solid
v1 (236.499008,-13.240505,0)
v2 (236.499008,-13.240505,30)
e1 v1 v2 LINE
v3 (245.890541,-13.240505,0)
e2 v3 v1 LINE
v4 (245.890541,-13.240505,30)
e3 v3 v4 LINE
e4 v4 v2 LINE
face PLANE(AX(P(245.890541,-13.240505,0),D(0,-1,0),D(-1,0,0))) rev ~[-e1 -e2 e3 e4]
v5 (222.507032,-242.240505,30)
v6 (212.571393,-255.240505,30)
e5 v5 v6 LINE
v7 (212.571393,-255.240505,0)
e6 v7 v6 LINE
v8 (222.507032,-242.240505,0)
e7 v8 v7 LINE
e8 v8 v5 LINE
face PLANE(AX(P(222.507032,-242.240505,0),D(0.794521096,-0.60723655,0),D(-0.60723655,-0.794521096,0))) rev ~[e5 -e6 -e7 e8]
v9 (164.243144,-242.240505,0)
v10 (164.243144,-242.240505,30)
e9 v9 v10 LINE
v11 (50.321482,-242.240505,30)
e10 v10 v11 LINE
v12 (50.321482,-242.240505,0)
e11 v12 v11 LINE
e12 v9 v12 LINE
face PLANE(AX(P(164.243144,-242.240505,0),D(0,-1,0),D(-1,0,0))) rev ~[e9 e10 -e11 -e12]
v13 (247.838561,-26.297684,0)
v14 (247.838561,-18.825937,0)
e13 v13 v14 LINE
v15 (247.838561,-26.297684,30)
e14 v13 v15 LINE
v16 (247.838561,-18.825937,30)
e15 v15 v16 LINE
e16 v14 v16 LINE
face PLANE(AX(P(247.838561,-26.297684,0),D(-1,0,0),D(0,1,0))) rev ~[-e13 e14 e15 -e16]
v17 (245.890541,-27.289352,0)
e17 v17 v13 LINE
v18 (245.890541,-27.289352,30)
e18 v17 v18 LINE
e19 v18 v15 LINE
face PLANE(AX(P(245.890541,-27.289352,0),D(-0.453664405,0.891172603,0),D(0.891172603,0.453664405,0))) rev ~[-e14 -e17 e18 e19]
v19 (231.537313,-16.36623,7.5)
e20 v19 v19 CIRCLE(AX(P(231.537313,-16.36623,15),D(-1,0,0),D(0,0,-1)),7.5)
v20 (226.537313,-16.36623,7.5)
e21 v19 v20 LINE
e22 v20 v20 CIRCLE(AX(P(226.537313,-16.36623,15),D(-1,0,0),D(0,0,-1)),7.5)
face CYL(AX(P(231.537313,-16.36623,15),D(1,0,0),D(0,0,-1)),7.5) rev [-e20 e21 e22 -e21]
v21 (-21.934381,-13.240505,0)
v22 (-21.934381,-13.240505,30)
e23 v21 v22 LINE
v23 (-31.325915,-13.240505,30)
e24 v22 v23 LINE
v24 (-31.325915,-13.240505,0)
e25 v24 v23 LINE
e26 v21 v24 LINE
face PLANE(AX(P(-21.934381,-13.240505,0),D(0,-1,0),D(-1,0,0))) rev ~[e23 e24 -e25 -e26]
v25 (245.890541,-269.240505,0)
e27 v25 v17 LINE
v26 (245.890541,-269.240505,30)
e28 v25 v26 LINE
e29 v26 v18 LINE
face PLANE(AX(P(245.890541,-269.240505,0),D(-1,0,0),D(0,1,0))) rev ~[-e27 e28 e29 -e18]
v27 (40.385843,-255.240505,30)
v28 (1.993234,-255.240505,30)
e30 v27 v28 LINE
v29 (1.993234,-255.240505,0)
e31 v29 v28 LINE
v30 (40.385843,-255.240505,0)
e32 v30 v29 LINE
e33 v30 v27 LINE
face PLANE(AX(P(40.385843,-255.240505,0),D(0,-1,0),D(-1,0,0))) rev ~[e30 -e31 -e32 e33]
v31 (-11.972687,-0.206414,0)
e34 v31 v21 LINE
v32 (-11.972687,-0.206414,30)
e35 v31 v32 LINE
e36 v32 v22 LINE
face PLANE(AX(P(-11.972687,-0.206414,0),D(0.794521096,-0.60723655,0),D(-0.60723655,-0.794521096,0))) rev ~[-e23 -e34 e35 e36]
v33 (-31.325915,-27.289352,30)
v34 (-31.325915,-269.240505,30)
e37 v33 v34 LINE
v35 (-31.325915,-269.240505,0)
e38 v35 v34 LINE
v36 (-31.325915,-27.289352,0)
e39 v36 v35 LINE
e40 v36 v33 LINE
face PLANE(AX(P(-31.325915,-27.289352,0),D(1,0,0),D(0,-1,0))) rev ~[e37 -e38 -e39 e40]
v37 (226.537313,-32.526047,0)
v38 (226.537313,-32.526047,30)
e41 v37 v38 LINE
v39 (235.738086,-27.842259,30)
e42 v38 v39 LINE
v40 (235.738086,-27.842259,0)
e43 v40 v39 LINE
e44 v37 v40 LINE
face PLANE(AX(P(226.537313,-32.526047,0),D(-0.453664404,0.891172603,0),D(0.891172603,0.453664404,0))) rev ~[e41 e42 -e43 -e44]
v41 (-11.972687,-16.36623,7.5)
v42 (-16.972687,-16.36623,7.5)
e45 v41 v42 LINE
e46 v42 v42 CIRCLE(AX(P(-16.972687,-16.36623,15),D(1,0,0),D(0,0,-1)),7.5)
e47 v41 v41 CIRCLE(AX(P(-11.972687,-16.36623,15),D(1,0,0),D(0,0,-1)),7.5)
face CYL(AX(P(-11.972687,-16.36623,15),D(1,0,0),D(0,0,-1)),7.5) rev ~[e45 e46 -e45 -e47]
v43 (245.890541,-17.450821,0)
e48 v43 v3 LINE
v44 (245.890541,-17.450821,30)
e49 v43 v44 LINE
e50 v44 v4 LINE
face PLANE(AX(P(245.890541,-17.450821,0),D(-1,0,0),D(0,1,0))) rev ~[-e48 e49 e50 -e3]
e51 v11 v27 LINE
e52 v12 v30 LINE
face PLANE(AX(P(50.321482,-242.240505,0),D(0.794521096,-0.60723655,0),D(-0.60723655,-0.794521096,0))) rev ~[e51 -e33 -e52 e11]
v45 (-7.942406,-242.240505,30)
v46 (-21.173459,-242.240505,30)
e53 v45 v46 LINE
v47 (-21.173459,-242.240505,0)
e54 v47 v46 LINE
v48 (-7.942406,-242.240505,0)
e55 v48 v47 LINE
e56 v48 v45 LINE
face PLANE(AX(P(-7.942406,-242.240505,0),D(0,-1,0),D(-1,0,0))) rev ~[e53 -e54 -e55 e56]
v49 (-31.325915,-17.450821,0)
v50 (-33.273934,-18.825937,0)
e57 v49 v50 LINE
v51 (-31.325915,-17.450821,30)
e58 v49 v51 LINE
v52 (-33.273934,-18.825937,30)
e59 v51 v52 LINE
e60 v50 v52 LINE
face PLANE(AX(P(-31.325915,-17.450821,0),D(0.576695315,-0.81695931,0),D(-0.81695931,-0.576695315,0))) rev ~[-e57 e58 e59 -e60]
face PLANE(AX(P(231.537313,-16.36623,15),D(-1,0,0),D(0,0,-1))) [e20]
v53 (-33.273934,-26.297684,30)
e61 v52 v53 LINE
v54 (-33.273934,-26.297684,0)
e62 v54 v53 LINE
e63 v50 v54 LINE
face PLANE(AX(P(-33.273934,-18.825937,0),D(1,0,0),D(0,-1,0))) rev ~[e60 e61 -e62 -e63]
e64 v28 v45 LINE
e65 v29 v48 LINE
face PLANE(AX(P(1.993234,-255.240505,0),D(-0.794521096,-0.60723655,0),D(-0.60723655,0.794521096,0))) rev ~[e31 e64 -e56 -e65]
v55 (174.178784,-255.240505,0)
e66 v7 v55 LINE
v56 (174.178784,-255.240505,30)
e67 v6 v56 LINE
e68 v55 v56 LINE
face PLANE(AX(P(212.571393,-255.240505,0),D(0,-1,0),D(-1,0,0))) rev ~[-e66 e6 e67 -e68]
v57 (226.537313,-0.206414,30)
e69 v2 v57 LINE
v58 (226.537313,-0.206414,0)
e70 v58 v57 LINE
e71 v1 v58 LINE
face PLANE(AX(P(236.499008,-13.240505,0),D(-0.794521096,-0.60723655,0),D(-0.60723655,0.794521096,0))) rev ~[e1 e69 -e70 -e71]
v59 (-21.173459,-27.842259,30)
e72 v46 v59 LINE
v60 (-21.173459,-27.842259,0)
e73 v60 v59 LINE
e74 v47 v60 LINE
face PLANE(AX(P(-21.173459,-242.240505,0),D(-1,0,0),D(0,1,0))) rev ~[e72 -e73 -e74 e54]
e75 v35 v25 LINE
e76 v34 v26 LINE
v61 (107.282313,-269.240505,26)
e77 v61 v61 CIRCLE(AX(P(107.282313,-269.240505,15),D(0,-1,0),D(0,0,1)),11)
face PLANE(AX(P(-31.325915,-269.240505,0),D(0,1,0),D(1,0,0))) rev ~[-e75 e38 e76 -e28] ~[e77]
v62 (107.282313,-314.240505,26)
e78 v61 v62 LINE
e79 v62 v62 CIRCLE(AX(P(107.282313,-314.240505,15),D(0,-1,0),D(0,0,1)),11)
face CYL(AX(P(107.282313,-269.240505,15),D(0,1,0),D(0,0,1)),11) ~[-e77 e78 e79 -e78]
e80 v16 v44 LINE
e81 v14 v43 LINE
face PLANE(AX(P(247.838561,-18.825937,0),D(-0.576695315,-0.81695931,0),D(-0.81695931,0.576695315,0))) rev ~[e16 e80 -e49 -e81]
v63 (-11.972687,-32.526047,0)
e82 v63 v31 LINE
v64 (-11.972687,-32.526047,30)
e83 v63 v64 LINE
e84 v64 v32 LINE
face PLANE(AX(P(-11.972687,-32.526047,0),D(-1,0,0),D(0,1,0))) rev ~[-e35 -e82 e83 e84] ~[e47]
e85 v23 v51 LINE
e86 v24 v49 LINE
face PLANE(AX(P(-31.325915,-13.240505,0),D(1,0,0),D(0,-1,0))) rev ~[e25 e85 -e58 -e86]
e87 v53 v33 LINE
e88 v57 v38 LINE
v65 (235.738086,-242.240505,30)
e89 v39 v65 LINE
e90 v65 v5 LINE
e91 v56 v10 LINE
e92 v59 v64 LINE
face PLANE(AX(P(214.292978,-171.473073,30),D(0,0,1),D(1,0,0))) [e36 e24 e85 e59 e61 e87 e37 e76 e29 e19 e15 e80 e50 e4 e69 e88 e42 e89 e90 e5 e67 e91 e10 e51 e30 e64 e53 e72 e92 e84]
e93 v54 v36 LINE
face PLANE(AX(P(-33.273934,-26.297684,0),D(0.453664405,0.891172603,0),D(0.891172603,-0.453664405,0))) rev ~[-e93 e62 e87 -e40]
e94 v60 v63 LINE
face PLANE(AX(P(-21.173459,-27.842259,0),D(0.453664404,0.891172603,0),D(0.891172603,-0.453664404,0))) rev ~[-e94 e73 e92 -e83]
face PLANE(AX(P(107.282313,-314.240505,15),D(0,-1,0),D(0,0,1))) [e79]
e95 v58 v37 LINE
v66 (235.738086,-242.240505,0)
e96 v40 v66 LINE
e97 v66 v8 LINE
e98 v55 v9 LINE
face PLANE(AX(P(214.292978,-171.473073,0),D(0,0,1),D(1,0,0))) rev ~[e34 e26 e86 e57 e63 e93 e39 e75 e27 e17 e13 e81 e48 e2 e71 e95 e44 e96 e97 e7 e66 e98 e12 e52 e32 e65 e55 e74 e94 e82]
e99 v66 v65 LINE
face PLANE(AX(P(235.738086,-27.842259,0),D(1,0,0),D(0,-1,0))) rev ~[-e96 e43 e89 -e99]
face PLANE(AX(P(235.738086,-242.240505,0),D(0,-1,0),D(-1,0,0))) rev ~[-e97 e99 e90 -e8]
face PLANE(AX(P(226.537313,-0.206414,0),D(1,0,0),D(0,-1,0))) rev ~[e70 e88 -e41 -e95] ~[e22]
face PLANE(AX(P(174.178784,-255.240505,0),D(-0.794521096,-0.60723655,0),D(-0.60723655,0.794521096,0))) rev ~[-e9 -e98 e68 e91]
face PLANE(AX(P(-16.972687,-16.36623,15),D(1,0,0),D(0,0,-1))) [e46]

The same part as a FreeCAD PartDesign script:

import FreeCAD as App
import Part
import Sketcher
Q = App.Units.Quantity

doc = App.newDocument("Part")
body = doc.addObject("PartDesign::Body", "Body")

sketch1 = body.newObject("Sketcher::SketchObject", "Sketch")
sketch1.AttachmentSupport = (doc.getObject("XY_Plane"), [""])
sketch1.MapMode = "FlatFace"
sketch1.addGeometry([
    Part.LineSegment(App.Vector(164.2, -242.2, 0), App.Vector(50.3, -242.2, 0)),
    Part.LineSegment(App.Vector(50.3, -242.2, 0), App.Vector(40.4, -255.2, 0)),
    Part.LineSegment(App.Vector(40.4, -255.2, 0), App.Vector(2, -255.2, 0)),
    Part.LineSegment(App.Vector(2, -255.2, 0), App.Vector(-7.9, -242.2, 0)),
    Part.LineSegment(App.Vector(-7.9, -242.2, 0), App.Vector(-21.2, -242.2, 0)),
    Part.LineSegment(App.Vector(-21.2, -242.2, 0), App.Vector(-21.2, -27.8, 0)),
    Part.LineSegment(App.Vector(-21.2, -27.8, 0), App.Vector(-12, -32.5, 0)),
    Part.LineSegment(App.Vector(-12, -32.5, 0), App.Vector(-12, -0.2, 0)),
    Part.LineSegment(App.Vector(-12, -0.2, 0), App.Vector(-21.9, -13.2, 0)),
    Part.LineSegment(App.Vector(-21.9, -13.2, 0), App.Vector(-31.3, -13.2, 0)),
    Part.LineSegment(App.Vector(-31.3, -13.2, 0), App.Vector(-31.3, -17.5, 0)),
    Part.LineSegment(App.Vector(-31.3, -17.5, 0), App.Vector(-33.3, -18.8, 0)),
    Part.LineSegment(App.Vector(-33.3, -18.8, 0), App.Vector(-33.3, -26.3, 0)),
    Part.LineSegment(App.Vector(-33.3, -26.3, 0), App.Vector(-31.3, -27.3, 0)),
    Part.LineSegment(App.Vector(-31.3, -27.3, 0), App.Vector(-31.3, -269.2, 0)),
    Part.LineSegment(App.Vector(-31.3, -269.2, 0), App.Vector(245.9, -269.2, 0)),
    Part.LineSegment(App.Vector(245.9, -269.2, 0), App.Vector(245.9, -27.3, 0)),
    Part.LineSegment(App.Vector(245.9, -27.3, 0), App.Vector(247.8, -26.3, 0)),
    Part.LineSegment(App.Vector(247.8, -26.3, 0), App.Vector(247.8, -18.8, 0)),
    Part.LineSegment(App.Vector(247.8, -18.8, 0), App.Vector(245.9, -17.5, 0)),
    Part.LineSegment(App.Vector(245.9, -17.5, 0), App.Vector(245.9, -13.2, 0)),
    Part.LineSegment(App.Vector(245.9, -13.2, 0), App.Vector(236.5, -13.2, 0)),
    Part.LineSegment(App.Vector(236.5, -13.2, 0), App.Vector(226.5, -0.2, 0)),
    Part.LineSegment(App.Vector(226.5, -0.2, 0), App.Vector(226.5, -32.5, 0)),
    Part.LineSegment(App.Vector(226.5, -32.5, 0), App.Vector(235.7, -27.8, 0)),
    Part.LineSegment(App.Vector(235.7, -27.8, 0), App.Vector(235.7, -242.2, 0)),
    Part.LineSegment(App.Vector(235.7, -242.2, 0), App.Vector(222.5, -242.2, 0)),
    Part.LineSegment(App.Vector(222.5, -242.2, 0), App.Vector(212.6, -255.2, 0)),
    Part.LineSegment(App.Vector(212.6, -255.2, 0), App.Vector(174.2, -255.2, 0)),
    Part.LineSegment(App.Vector(174.2, -255.2, 0), App.Vector(164.2, -242.2, 0)),
], False)
sketch1.addConstraint([
    Sketcher.Constraint("Coincident", 0, 2, 1, 1),
    Sketcher.Constraint("Coincident", 1, 2, 2, 1),
    Sketcher.Constraint("Coincident", 2, 2, 3, 1),
    Sketcher.Constraint("Coincident", 3, 2, 4, 1),
    Sketcher.Constraint("Coincident", 4, 2, 5, 1),
    Sketcher.Constraint("Coincident", 5, 2, 6, 1),
    Sketcher.Constraint("Coincident", 6, 2, 7, 1),
    Sketcher.Constraint("Coincident", 7, 2, 8, 1),
    Sketcher.Constraint("Coincident", 8, 2, 9, 1),
    Sketcher.Constraint("Coincident", 9, 2, 10, 1),
    Sketcher.Constraint("Coincident", 10, 2, 11, 1),
    Sketcher.Constraint("Coincident", 11, 2, 12, 1),
    Sketcher.Constraint("Coincident", 12, 2, 13, 1),
    Sketcher.Constraint("Coincident", 13, 2, 14, 1),
    Sketcher.Constraint("Coincident", 14, 2, 15, 1),
    Sketcher.Constraint("Coincident", 15, 2, 16, 1),
    Sketcher.Constraint("Coincident", 16, 2, 17, 1),
    Sketcher.Constraint("Coincident", 17, 2, 18, 1),
    Sketcher.Constraint("Coincident", 18, 2, 19, 1),
    Sketcher.Constraint("Coincident", 19, 2, 20, 1),
    Sketcher.Constraint("Coincident", 20, 2, 21, 1),
    Sketcher.Constraint("Coincident", 21, 2, 22, 1),
    Sketcher.Constraint("Coincident", 22, 2, 23, 1),
    Sketcher.Constraint("Coincident", 23, 2, 24, 1),
    Sketcher.Constraint("Coincident", 24, 2, 25, 1),
    Sketcher.Constraint("Coincident", 25, 2, 26, 1),
    Sketcher.Constraint("Coincident", 26, 2, 27, 1),
    Sketcher.Constraint("Coincident", 27, 2, 28, 1),
    Sketcher.Constraint("Coincident", 28, 2, 29, 1),
    Sketcher.Constraint("Coincident", 29, 2, 0, 1),
    Sketcher.Constraint("Horizontal", 0),
    Sketcher.Constraint("Horizontal", 2),
    Sketcher.Constraint("Horizontal", 4),
    Sketcher.Constraint("Vertical", 5),
    Sketcher.Constraint("Vertical", 7),
    Sketcher.Constraint("Horizontal", 9),
    Sketcher.Constraint("Vertical", 10),
    Sketcher.Constraint("Vertical", 12),
    Sketcher.Constraint("Vertical", 14),
    Sketcher.Constraint("Horizontal", 15),
    Sketcher.Constraint("Vertical", 16),
    Sketcher.Constraint("Vertical", 18),
    Sketcher.Constraint("Vertical", 20),
    Sketcher.Constraint("Horizontal", 21),
    Sketcher.Constraint("Vertical", 23),
    Sketcher.Constraint("Vertical", 25),
    Sketcher.Constraint("Horizontal", 26),
    Sketcher.Constraint("Horizontal", 28),
    Sketcher.Constraint("Parallel", 1, 8),
    Sketcher.Constraint("Parallel", 6, 13),
    Sketcher.Constraint("Parallel", 3, 22),
    Sketcher.Constraint("Parallel", 17, 24),
    Sketcher.Constraint("Parallel", 8, 27),
    Sketcher.Constraint("Parallel", 22, 29),
    Sketcher.Constraint("Horizontal", 0, 2, 3, 2),
    Sketcher.Constraint("Horizontal", 13, 2, 16, 2),
    Sketcher.Constraint("Horizontal", 12, 2, 17, 2),
    Sketcher.Constraint("Horizontal", 11, 2, 18, 2),
    Sketcher.Constraint("Horizontal", 10, 2, 19, 2),
    Sketcher.Constraint("Horizontal", 9, 2, 20, 2),
    Sketcher.Constraint("Horizontal", 7, 2, 22, 2),
    Sketcher.Constraint("Horizontal", 6, 2, 23, 2),
    Sketcher.Constraint("Horizontal", 5, 2, 24, 2),
    Sketcher.Constraint("Horizontal", 4, 2, 25, 2),
    Sketcher.Constraint("Horizontal", 2, 2, 27, 2),
    Sketcher.Constraint("Vertical", 10, 2, 13, 2),
    Sketcher.Constraint("Vertical", 16, 2, 19, 2),
    Sketcher.Constraint("Equal", 9, 21),
    Sketcher.Constraint("Equal", 4, 26),
    Sketcher.Constraint("Equal", 2, 28),
    Sketcher.Constraint("Equal", 1, 3),
    Sketcher.Constraint("Equal", 13, 17),
    Sketcher.Constraint("DistanceY", 1, 2, 0, 2, Q("13 mm")),
    Sketcher.Constraint("DistanceY", 4, 2, 8, 2, Q("229 mm")),
    Sketcher.Constraint("DistanceY", 14, 2, 4, 2, Q("27 mm")),
    Sketcher.Constraint("DistanceX", 4, 2, 15, 2, Q("267.064 mm")),
    Sketcher.Constraint("DistanceX", 0, 2, 0, 1, Q("113.921662 mm")),
    Sketcher.Constraint("DistanceX", 2, 2, 2, 1, Q("38.392609 mm")),
    Sketcher.Constraint("DistanceX", 1, 2, 15, 2, Q("205.504698 mm")),
    Sketcher.Constraint("DistanceX", 0, 2, 28, 2, Q("123.857301 mm")),
    Sketcher.Constraint("DistanceX", 9, 2, 9, 1, Q("9.391533 mm")),
    Sketcher.Constraint("DistanceY", 5, 1, 5, 2, Q("214.398246 mm")),
    Sketcher.Constraint("DistanceY", 7, 1, 7, 2, Q("32.319633 mm")),
    Sketcher.Constraint("DistanceY", 10, 2, 10, 1, Q("4.210316 mm")),
    Sketcher.Constraint("DistanceY", 12, 2, 12, 1, Q("7.471747 mm")),
    Sketcher.Constraint("DistanceY", 14, 2, 14, 1, Q("241.951153 mm")),
    Sketcher.Constraint("DistanceX", 4, 2, -1, 1, Q("21.173459 mm")),
    Sketcher.Constraint("DistanceY", 5, 2, -1, 1, Q("27.842259 mm")),
    Sketcher.Constraint("DistanceX", -1, 1, 17, 2, Q("247.838561 mm")),
    Sketcher.Constraint("DistanceX", 6, 2, 3, 2, Q("4.030281 mm")),
])
pad1 = body.newObject("PartDesign::Pad", "Pad")
pad1.Profile = sketch1
pad1.Length = 30

sketch2 = body.newObject("Sketcher::SketchObject", "Sketch001")
sketch2.AttachmentSupport = (doc.getObject("XZ_Plane"), [""])
sketch2.MapMode = "FlatFace"
sketch2.AttachmentOffset = App.Placement(App.Vector(0, 0, 269.240505), App.Rotation())
sketch2.addGeometry(Part.Circle(App.Vector(107, 15, 0), App.Vector(0, 0, 1), 11), False)
sketch2.addConstraint([
    Sketcher.Constraint("Diameter", 0, Q("22 mm")),
    Sketcher.Constraint("DistanceY", -1, 1, 0, 3, Q("15 mm")),
    Sketcher.Constraint("DistanceX", -1, 1, 0, 3, Q("107.282313 mm")),
])
pad2 = body.newObject("PartDesign::Pad", "Pad001")
pad2.Profile = sketch2
pad2.Length = 45

sketch3 = body.newObject("Sketcher::SketchObject", "Sketch002")
sketch3.AttachmentSupport = (doc.getObject("YZ_Plane"), [""])
sketch3.MapMode = "FlatFace"
sketch3.AttachmentOffset = App.Placement(App.Vector(0, 0, -11.972687), App.Rotation())
sketch3.addGeometry(Part.Circle(App.Vector(-16, 15, 0), App.Vector(0, 0, 1), 8), False)
sketch3.addConstraint([
    Sketcher.Constraint("Diameter", 0, Q("15 mm")),
    Sketcher.Constraint("DistanceY", -1, 1, 0, 3, Q("15 mm")),
    Sketcher.Constraint("DistanceX", 0, 3, -1, 1, Q("16.36623 mm")),
])
pocket1 = body.newObject("PartDesign::Pocket", "Pocket")
pocket1.Profile = sketch3
pocket1.Length = 5

sketch4 = body.newObject("Sketcher::SketchObject", "Sketch003")
sketch4.AttachmentSupport = (doc.getObject("YZ_Plane"), [""])
sketch4.MapMode = "FlatFace"
sketch4.AttachmentOffset = App.Placement(App.Vector(0, 0, 231.537313), App.Rotation())
sketch4.addGeometry(Part.Circle(App.Vector(-16, 15, 0), App.Vector(0, 0, 1), 8), False)
sketch4.addConstraint([
    Sketcher.Constraint("Diameter", 0, Q("15 mm")),
    Sketcher.Constraint("DistanceY", -1, 1, 0, 3, Q("15 mm")),
    Sketcher.Constraint("DistanceX", 0, 3, -1, 1, Q("16.36623 mm")),
])
pocket2 = body.newObject("PartDesign::Pocket", "Pocket001")
pocket2.Profile = sketch4
pocket2.Length = 5

doc.recompute()
